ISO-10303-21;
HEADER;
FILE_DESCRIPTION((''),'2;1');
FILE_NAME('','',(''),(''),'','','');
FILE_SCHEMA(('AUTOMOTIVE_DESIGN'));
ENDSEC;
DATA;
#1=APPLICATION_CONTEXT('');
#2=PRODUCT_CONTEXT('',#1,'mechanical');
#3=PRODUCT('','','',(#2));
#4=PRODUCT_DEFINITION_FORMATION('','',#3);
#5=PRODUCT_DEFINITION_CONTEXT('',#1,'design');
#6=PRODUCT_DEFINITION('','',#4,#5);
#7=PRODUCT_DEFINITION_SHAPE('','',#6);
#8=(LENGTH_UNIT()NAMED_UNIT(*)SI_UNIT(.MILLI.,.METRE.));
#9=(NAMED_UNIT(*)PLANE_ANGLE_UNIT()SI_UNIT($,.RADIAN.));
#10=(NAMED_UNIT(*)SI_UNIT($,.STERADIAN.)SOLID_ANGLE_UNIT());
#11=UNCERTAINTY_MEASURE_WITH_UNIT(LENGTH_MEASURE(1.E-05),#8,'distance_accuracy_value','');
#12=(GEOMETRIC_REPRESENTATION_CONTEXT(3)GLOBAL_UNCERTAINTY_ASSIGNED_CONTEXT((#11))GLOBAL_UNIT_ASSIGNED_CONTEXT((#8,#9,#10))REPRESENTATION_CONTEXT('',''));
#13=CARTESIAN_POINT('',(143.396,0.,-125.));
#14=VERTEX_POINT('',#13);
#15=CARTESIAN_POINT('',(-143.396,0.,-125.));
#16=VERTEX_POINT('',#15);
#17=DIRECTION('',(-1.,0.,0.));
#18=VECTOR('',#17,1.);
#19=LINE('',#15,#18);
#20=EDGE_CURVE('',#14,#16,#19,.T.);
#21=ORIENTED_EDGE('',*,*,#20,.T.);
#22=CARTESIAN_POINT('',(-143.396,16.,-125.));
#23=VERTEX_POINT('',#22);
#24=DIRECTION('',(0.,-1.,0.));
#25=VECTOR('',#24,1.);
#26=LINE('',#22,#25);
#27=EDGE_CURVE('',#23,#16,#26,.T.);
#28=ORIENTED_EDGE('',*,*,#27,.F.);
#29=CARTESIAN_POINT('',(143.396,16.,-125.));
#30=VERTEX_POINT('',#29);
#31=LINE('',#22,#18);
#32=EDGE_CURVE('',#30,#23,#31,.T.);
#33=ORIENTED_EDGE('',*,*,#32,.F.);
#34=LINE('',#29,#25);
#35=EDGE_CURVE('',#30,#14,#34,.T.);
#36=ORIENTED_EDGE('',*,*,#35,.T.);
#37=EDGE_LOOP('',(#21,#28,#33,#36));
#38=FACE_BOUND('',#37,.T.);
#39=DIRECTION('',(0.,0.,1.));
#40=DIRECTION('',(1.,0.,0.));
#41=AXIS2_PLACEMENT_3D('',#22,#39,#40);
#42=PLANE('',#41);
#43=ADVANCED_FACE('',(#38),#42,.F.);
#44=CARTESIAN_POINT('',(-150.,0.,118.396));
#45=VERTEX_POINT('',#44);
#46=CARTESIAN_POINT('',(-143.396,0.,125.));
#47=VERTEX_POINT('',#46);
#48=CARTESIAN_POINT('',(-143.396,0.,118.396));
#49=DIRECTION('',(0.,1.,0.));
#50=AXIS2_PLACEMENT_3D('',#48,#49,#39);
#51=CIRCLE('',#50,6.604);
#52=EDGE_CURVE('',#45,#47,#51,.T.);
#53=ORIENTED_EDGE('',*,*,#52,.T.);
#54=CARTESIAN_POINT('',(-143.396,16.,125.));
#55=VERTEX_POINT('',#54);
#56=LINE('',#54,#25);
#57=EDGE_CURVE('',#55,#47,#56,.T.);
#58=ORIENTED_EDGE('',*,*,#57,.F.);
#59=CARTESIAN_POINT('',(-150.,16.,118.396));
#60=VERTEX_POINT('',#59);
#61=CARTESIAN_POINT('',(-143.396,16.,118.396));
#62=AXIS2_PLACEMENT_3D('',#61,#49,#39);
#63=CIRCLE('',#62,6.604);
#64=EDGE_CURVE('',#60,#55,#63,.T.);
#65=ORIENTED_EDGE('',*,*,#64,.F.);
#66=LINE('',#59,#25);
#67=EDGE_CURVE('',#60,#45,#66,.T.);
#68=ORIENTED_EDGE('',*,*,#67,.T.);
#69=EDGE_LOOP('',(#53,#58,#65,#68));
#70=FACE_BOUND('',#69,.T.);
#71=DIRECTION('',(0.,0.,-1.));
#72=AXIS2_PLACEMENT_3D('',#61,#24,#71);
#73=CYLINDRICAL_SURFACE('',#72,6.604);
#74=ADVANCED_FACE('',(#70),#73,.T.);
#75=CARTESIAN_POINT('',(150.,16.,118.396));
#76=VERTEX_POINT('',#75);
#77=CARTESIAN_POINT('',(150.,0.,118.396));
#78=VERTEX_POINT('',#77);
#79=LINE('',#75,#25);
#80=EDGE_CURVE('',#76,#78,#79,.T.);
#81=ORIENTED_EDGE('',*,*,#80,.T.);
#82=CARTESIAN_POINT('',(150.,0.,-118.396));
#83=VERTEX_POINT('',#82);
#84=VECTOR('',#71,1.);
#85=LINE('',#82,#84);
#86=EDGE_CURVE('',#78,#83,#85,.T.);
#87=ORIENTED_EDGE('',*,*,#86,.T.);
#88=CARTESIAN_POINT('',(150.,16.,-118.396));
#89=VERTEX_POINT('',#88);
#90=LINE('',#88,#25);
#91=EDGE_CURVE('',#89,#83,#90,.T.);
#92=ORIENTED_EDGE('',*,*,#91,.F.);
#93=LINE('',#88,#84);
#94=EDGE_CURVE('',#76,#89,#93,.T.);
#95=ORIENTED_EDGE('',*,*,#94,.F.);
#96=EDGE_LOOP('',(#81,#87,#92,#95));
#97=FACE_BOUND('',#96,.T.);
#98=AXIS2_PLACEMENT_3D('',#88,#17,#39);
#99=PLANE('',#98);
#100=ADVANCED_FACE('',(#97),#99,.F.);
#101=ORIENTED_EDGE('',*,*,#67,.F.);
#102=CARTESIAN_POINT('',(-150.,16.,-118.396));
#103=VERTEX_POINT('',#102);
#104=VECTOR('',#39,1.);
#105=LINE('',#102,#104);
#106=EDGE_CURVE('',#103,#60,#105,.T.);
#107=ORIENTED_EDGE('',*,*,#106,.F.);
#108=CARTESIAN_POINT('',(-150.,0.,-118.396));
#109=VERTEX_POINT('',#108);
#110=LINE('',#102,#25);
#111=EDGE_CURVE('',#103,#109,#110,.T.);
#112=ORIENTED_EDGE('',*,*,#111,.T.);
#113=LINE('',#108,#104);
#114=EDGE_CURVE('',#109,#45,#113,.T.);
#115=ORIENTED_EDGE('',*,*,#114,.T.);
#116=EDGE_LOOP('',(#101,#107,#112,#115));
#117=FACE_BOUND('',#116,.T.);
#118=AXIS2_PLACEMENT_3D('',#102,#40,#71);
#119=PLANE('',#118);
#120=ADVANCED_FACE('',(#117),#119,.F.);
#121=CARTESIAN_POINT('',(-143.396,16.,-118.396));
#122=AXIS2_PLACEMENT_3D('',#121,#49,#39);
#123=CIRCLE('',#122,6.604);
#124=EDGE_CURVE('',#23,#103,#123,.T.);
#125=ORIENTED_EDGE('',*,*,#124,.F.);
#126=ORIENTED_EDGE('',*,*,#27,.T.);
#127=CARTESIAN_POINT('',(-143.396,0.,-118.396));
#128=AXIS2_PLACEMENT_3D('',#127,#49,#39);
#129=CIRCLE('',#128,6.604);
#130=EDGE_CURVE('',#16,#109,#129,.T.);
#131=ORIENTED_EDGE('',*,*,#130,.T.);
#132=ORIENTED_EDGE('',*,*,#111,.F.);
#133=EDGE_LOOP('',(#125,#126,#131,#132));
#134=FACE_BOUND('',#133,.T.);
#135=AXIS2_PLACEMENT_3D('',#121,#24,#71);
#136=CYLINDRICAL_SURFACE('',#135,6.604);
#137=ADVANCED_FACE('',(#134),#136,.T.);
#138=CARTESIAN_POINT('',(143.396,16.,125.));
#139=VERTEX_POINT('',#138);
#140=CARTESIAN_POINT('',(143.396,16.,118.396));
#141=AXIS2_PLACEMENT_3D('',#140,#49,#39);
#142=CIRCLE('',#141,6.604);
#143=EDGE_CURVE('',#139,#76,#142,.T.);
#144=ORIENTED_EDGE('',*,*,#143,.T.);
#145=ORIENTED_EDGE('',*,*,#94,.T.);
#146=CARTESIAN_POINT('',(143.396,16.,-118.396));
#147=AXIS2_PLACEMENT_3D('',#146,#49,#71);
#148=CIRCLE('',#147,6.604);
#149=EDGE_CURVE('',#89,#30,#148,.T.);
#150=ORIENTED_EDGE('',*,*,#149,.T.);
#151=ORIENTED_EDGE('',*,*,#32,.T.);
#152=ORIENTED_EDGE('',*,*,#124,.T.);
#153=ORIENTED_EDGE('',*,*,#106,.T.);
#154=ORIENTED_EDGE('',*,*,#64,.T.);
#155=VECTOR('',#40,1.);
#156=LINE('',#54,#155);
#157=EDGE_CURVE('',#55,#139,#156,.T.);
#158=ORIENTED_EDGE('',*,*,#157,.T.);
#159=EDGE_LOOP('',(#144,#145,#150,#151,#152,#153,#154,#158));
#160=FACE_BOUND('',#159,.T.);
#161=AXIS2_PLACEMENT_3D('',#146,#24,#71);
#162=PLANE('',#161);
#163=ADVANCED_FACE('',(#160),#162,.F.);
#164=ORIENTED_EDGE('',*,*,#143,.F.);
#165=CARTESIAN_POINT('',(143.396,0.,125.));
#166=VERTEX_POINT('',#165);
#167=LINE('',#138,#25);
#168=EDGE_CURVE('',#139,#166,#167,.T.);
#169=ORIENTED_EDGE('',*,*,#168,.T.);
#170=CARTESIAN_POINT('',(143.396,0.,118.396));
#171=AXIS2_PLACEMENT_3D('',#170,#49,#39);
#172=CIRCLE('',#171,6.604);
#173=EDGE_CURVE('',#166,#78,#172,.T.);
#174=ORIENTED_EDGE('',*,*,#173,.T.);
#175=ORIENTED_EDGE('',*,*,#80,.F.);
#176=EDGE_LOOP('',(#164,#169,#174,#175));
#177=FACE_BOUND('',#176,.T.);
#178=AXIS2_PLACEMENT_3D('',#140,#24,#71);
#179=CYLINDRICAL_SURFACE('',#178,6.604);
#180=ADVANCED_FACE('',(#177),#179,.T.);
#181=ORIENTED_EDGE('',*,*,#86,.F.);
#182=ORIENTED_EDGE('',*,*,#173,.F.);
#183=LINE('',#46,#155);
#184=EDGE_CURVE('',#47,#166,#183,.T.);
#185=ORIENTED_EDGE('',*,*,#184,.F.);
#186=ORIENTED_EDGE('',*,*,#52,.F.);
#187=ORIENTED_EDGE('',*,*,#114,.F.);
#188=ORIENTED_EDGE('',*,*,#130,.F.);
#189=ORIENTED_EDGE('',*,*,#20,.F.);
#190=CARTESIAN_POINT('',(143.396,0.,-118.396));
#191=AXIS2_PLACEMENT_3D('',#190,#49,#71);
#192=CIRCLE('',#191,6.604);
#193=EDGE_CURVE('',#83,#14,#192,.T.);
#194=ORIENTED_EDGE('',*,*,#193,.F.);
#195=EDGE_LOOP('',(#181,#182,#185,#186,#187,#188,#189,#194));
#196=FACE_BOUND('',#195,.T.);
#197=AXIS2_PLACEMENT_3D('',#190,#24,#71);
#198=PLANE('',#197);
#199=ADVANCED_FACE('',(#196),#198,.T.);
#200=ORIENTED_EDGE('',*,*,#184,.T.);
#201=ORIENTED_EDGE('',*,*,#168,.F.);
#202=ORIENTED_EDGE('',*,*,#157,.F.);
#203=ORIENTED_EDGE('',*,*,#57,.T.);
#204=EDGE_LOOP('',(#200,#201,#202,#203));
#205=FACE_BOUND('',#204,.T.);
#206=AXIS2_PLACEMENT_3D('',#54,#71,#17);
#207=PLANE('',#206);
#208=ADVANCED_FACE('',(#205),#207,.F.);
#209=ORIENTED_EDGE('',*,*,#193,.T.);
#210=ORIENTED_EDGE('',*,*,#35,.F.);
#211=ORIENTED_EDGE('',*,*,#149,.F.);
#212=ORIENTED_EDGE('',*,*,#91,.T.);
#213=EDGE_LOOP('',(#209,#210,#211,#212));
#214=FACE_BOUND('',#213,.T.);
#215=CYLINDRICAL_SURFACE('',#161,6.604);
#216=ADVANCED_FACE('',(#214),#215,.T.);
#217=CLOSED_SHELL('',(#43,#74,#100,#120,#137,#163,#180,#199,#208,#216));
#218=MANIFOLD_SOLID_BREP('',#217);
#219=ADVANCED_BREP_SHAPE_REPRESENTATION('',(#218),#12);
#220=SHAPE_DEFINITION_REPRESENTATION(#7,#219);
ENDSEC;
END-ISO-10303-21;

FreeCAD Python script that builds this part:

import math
import FreeCAD as App
import Part
import Sketcher

doc = App.newDocument("Part")
body = doc.addObject("PartDesign::Body", "Body")

sketch1 = doc.addObject("Sketcher::SketchObject", "Sketch")
body.addObject(sketch1)
sketch1.AttachmentSupport = (doc.XZ_Plane, [""])
sketch1.MapMode = "FlatFace"
sketch1.addGeometry(Part.LineSegment(App.Vector(143.396, -125, 0), App.Vector(-143.396, -125, 0)), False)
sketch1.addGeometry(Part.ArcOfCircle(Part.Circle(App.Vector(-143.396, -118.396, 0), App.Vector(0, 0, 1), 6.604), math.radians(180), math.radians(270)), False)
sketch1.addGeometry(Part.LineSegment(App.Vector(-150, -118.396, 0), App.Vector(-150, 118.396, 0)), False)
sketch1.addGeometry(Part.ArcOfCircle(Part.Circle(App.Vector(-143.396, 118.396, 0), App.Vector(0, 0, 1), 6.604), math.radians(90), math.radians(180)), False)
sketch1.addGeometry(Part.LineSegment(App.Vector(-143.396, 125, 0), App.Vector(143.396, 125, 0)), False)
sketch1.addGeometry(Part.ArcOfCircle(Part.Circle(App.Vector(143.396, 118.396, 0), App.Vector(0, 0, 1), 6.604), math.radians(0), math.radians(90)), False)
sketch1.addGeometry(Part.LineSegment(App.Vector(150, 118.396, 0), App.Vector(150, -118.396, 0)), False)
sketch1.addGeometry(Part.ArcOfCircle(Part.Circle(App.Vector(143.396, -118.396, 0), App.Vector(0, 0, 1), 6.604), math.radians(-90), math.radians(0)), False)
sketch1.addConstraint(Sketcher.Constraint("Tangent", 0, 2, 1, 2))
sketch1.addConstraint(Sketcher.Constraint("Tangent", 1, 1, 2, 1))
sketch1.addConstraint(Sketcher.Constraint("Tangent", 2, 2, 3, 2))
sketch1.addConstraint(Sketcher.Constraint("Tangent", 3, 1, 4, 1))
sketch1.addConstraint(Sketcher.Constraint("Tangent", 4, 2, 5, 2))
sketch1.addConstraint(Sketcher.Constraint("Tangent", 5, 1, 6, 1))
sketch1.addConstraint(Sketcher.Constraint("Tangent", 6, 2, 7, 2))
sketch1.addConstraint(Sketcher.Constraint("Tangent", 7, 1, 0, 1))
sketch1.addConstraint(Sketcher.Constraint("Horizontal", 0))
sketch1.addConstraint(Sketcher.Constraint("Vertical", 2))
sketch1.addConstraint(Sketcher.Constraint("Horizontal", 4))
sketch1.addConstraint(Sketcher.Constraint("Vertical", 6))
sketch1.addConstraint(Sketcher.Constraint("Equal", 1, 3))
sketch1.addConstraint(Sketcher.Constraint("Equal", 3, 5))
sketch1.addConstraint(Sketcher.Constraint("Equal", 5, 7))
sketch1.addConstraint(Sketcher.Constraint("Symmetric", 1, 3, 5, 3, -1, 1))
sketch1.addConstraint(Sketcher.Constraint("DistanceY", 0, 2, -1, 1, 125.0))
sketch1.addConstraint(Sketcher.Constraint("DistanceX", 1, 1, -1, 1, 150.0))
sketch1.addConstraint(Sketcher.Constraint("Radius", 1, 6.604))
pad1 = doc.addObject("PartDesign::Pad", "Pad")
body.addObject(pad1)
pad1.Profile = sketch1
pad1.Length = 16
pad1.Reversed = True

doc.recompute()
